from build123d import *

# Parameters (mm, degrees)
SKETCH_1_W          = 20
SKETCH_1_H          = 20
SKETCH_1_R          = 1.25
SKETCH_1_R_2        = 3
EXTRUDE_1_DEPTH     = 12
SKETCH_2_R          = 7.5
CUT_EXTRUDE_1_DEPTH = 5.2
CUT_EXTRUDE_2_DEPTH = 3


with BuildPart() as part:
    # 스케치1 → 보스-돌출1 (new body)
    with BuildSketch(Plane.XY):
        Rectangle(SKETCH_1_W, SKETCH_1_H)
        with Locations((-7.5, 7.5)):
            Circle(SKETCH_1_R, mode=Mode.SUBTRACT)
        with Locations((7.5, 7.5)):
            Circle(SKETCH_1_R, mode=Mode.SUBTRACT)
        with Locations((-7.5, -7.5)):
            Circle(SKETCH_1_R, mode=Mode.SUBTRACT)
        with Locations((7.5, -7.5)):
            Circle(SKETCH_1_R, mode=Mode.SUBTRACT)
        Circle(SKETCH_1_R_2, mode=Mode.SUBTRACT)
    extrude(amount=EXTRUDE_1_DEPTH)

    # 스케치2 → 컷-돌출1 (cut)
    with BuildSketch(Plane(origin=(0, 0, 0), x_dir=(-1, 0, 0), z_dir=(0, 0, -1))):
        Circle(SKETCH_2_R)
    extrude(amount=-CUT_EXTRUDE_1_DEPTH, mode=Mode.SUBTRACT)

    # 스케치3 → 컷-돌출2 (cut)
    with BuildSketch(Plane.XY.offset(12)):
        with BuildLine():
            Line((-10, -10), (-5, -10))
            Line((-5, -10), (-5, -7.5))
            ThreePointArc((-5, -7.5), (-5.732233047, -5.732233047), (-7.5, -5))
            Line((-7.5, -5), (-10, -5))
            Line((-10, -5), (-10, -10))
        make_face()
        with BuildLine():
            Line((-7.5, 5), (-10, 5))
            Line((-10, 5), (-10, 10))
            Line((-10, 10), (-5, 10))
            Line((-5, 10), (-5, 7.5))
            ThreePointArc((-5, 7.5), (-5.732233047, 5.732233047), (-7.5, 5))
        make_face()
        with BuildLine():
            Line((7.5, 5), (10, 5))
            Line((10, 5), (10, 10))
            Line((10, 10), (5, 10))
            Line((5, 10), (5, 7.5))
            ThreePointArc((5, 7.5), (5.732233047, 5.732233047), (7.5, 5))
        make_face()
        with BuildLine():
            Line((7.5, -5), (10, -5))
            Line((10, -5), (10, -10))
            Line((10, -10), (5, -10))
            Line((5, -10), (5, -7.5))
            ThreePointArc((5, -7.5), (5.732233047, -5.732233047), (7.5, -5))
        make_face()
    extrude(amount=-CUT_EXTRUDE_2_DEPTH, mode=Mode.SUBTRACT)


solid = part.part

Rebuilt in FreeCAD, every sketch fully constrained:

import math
import FreeCAD as App
import Part
import Sketcher

V = App.Vector


def add_polygon(sketch, points):
    """Adds a closed chain of lines whose ends are joined by coincident constraints."""
    first, n = sketch.GeometryCount, len(points)
    for a, b in zip(points, points[1:] + points[:1]):
        sketch.addGeometry(Part.LineSegment(App.Vector(*a, 0), App.Vector(*b, 0)), False)
    for i in range(n):
        sketch.addConstraint(Sketcher.Constraint("Coincident", first + i, 2, first + (i + 1) % n, 1))

doc = App.newDocument("Part")
params = doc.addObject("Spreadsheet::Sheet", "Params")
for row, (alias, value) in enumerate([
    ("sketch1_diameter", "6 mm"),
    ("sketch1_diameter2", "2.5 mm"),
    ("sketch1_width", "20 mm"),
    ("pad1_length", "12 mm"),
    ("sketch2_diameter", "15 mm"),
    ("pocket1_length", "5.2 mm"),
    ("sketch3_radius", "2.5 mm"),
    ("sketch3_width", "5 mm"),
    ("pocket2_length", "3 mm"),
], start=1):
    params.set(f"A{row}", alias)
    params.set(f"B{row}", "=" + value)
    params.setAlias(f"B{row}", alias)

body = doc.addObject("PartDesign::Body", "Body")

# Sketch on XY plane
sketch1 = body.newObject("Sketcher::SketchObject", "Sketch")
sketch1.AttachmentSupport = (doc.getObject("XY_Plane"), [""])
sketch1.MapMode = "FlatFace"
add_polygon(sketch1, [(-10, 10), (-10, -10), (10, -10), (10, 10)])  # lines 0-3
sketch1.addGeometry(Part.Circle(V(-7.5, -7.5, 0), V(0, 0, 1), 1.2), False)  # 4
sketch1.addGeometry(Part.Circle(V(7.5, -7.5, 0), V(0, 0, 1), 1.2), False)  # 5
sketch1.addGeometry(Part.Circle(V(-7.5, 7.5, 0), V(0, 0, 1), 1.2), False)  # 6
sketch1.addGeometry(Part.Circle(V(0, 0, 0), V(0, 0, 1), 3), False)  # 7
sketch1.addGeometry(Part.Circle(V(7.5, 7.5, 0), V(0, 0, 1), 1.2), False)  # 8
sketch1.addConstraint([
    Sketcher.Constraint("Vertical", 0),
    Sketcher.Constraint("Horizontal", 1),
    Sketcher.Constraint("Vertical", 2),
    Sketcher.Constraint("Horizontal", 3),
    Sketcher.Constraint("Coincident", 7, 3, -1, 1),
    Sketcher.Constraint("Equal", 4, 5),
    Sketcher.Constraint("Equal", 5, 6),
    Sketcher.Constraint("Equal", 6, 8),
    Sketcher.Constraint("Symmetric", 5, 3, 6, 3, -1, 1),
    Sketcher.Constraint("Symmetric", 4, 3, 8, 3, -1, 1),
    Sketcher.Constraint("Symmetric", 0, 2, 2, 2, -1, 1),
    Sketcher.Constraint("Symmetric", 4, 3, 5, 3, -2),
    Sketcher.Constraint("Equal", 3, 0),
    Sketcher.Constraint("Diameter", 7, 6.0),
    Sketcher.Constraint("Diameter", 4, 2.5),
    Sketcher.Constraint("DistanceX", 1, 1, 1, 2, 20.0),
    Sketcher.Constraint("DistanceX", 4, 3, 5, 3, 15.0),
    Sketcher.Constraint("DistanceY", 4, 3, 6, 3, 15.0),
])
sketch1.setExpression("Constraints[17]", "Params.sketch1_diameter")
sketch1.setExpression("Constraints[18]", "Params.sketch1_diameter2")
sketch1.setExpression("Constraints[19]", "Params.sketch1_width")
pad1 = body.newObject("PartDesign::Pad", "Pad")
pad1.Profile = sketch1
pad1.setExpression("Length", "Params.pad1_length")

# Sketch on XY plane
sketch2 = body.newObject("Sketcher::SketchObject", "Sketch001")
sketch2.AttachmentSupport = (doc.getObject("XY_Plane"), [""])
sketch2.MapMode = "FlatFace"
sketch2.addGeometry(Part.Circle(V(0, 0, 0), V(0, 0, 1), 8), False)
sketch2.addConstraint([
    Sketcher.Constraint("Coincident", 0, 3, -1, 1),
    Sketcher.Constraint("Diameter", 0, 15.0),
])
sketch2.setExpression("Constraints[1]", "Params.sketch2_diameter")
pocket1 = body.newObject("PartDesign::Pocket", "Pocket")
pocket1.Profile = sketch2
pocket1.setExpression("Length", "Params.pocket1_length")
pocket1.Reversed = True

# Sketch on XY plane
sketch3 = body.newObject("Sketcher::SketchObject", "Sketch002")
sketch3.AttachmentSupport = (doc.getObject("XY_Plane"), [""])
sketch3.MapMode = "FlatFace"
sketch3.AttachmentOffset = App.Placement(V(0, 0, 12), App.Rotation())
sketch3.addGeometry([
    Part.LineSegment(V(-10, -10, 0), V(-5, -10, 0)),  # 0
    Part.LineSegment(V(-5, -10, 0), V(-5, -7.5, 0)),  # 1
    Part.ArcOfCircle(Part.Circle(V(-7.5, -7.5, 0), V(0, 0, 1), 2.5), math.radians(0), math.radians(90)),  # 2
    Part.LineSegment(V(-7.5, -5, 0), V(-10, -5, 0)),  # 3
    Part.LineSegment(V(-10, -5, 0), V(-10, -10, 0)),  # 4
    Part.LineSegment(V(-10, 5, 0), V(-7.5, 5, 0)),  # 5
    Part.ArcOfCircle(Part.Circle(V(-7.5, 7.5, 0), V(0, 0, 1), 2.5), math.radians(-90), math.radians(0)),  # 6
    Part.LineSegment(V(-5, 7.5, 0), V(-5, 10, 0)),  # 7
    Part.LineSegment(V(-5, 10, 0), V(-10, 10, 0)),  # 8
    Part.LineSegment(V(-10, 10, 0), V(-10, 5, 0)),  # 9
    Part.LineSegment(V(7.5, 5, 0), V(10, 5, 0)),  # 10
    Part.LineSegment(V(10, 5, 0), V(10, 10, 0)),  # 11
    Part.LineSegment(V(10, 10, 0), V(5, 10, 0)),  # 12
    Part.LineSegment(V(5, 10, 0), V(5, 7.5, 0)),  # 13
    Part.ArcOfCircle(Part.Circle(V(7.5, 7.5, 0), V(0, 0, 1), 2.5), math.radians(180), math.radians(270)),  # 14
    Part.LineSegment(V(10, -5, 0), V(7.5, -5, 0)),  # 15
    Part.ArcOfCircle(Part.Circle(V(7.5, -7.5, 0), V(0, 0, 1), 2.5), math.radians(90), math.radians(180)),  # 16
    Part.LineSegment(V(5, -7.5, 0), V(5, -10, 0)),  # 17
    Part.LineSegment(V(5, -10, 0), V(10, -10, 0)),  # 18
    Part.LineSegment(V(10, -10, 0), V(10, -5, 0)),  # 19
], False)
sketch3.addConstraint([
    Sketcher.Constraint("Coincident", 0, 2, 1, 1),
    Sketcher.Constraint("Tangent", 1, 2, 2, 1),
    Sketcher.Constraint("Tangent", 2, 2, 3, 1),
    Sketcher.Constraint("Coincident", 3, 2, 4, 1),
    Sketcher.Constraint("Coincident", 4, 2, 0, 1),
    Sketcher.Constraint("Tangent", 5, 2, 6, 1),
    Sketcher.Constraint("Tangent", 6, 2, 7, 1),
    Sketcher.Constraint("Coincident", 7, 2, 8, 1),
    Sketcher.Constraint("Coincident", 8, 2, 9, 1),
    Sketcher.Constraint("Coincident", 9, 2, 5, 1),
    Sketcher.Constraint("Coincident", 10, 2, 11, 1),
    Sketcher.Constraint("Coincident", 11, 2, 12, 1),
    Sketcher.Constraint("Coincident", 12, 2, 13, 1),
    Sketcher.Constraint("Tangent", 13, 2, 14, 1),
    Sketcher.Constraint("Tangent", 14, 2, 10, 1),
    Sketcher.Constraint("Tangent", 15, 2, 16, 1),
    Sketcher.Constraint("Tangent", 16, 2, 17, 1),
    Sketcher.Constraint("Coincident", 17, 2, 18, 1),
    Sketcher.Constraint("Coincident", 18, 2, 19, 1),
    Sketcher.Constraint("Coincident", 19, 2, 15, 1),
    Sketcher.Constraint("Horizontal", 0),
    Sketcher.Constraint("Vertical", 1),
    Sketcher.Constraint("Horizontal", 3),
    Sketcher.Constraint("Vertical", 4),
    Sketcher.Constraint("Horizontal", 5),
    Sketcher.Constraint("Vertical", 7),
    Sketcher.Constraint("Horizontal", 8),
    Sketcher.Constraint("Vertical", 9),
    Sketcher.Constraint("Horizontal", 10),
    Sketcher.Constraint("Vertical", 11),
    Sketcher.Constraint("Horizontal", 12),
    Sketcher.Constraint("Vertical", 13),
    Sketcher.Constraint("Horizontal", 15),
    Sketcher.Constraint("Vertical", 17),
    Sketcher.Constraint("Horizontal", 18),
    Sketcher.Constraint("Vertical", 19),
    Sketcher.Constraint("Equal", 2, 6),
    Sketcher.Constraint("Equal", 6, 14),
    Sketcher.Constraint("Equal", 14, 16),
    Sketcher.Constraint("Symmetric", 2, 3, 14, 3, -1, 1),
    Sketcher.Constraint("Symmetric", 6, 3, 16, 3, -1, 1),
    Sketcher.Constraint("Symmetric", 4, 2, 11, 2, -1, 1),
    Sketcher.Constraint("Symmetric", 8, 2, 18, 2, -1, 1),
    Sketcher.Constraint("Symmetric", 6, 3, 14, 3, -2),
    Sketcher.Constraint("Symmetric", 8, 2, 11, 2, -2),
    Sketcher.Constraint("Equal", 15, 1),
    Sketcher.Constraint("Radius", 2, 2.5),
    Sketcher.Constraint("DistanceX", 0, 1, 0, 2, 5.0),
    Sketcher.Constraint("DistanceX", 0, 2, -1, 1, 5.0),
    Sketcher.Constraint("DistanceY", 0, 2, -1, 1, 10.0),
])
sketch3.setExpression("Constraints[46]", "Params.sketch3_radius")
sketch3.setExpression("Constraints[47]", "Params.sketch3_width")
pocket2 = body.newObject("PartDesign::Pocket", "Pocket001")
pocket2.Profile = sketch3
pocket2.setExpression("Length", "Params.pocket2_length")

doc.recompute()
